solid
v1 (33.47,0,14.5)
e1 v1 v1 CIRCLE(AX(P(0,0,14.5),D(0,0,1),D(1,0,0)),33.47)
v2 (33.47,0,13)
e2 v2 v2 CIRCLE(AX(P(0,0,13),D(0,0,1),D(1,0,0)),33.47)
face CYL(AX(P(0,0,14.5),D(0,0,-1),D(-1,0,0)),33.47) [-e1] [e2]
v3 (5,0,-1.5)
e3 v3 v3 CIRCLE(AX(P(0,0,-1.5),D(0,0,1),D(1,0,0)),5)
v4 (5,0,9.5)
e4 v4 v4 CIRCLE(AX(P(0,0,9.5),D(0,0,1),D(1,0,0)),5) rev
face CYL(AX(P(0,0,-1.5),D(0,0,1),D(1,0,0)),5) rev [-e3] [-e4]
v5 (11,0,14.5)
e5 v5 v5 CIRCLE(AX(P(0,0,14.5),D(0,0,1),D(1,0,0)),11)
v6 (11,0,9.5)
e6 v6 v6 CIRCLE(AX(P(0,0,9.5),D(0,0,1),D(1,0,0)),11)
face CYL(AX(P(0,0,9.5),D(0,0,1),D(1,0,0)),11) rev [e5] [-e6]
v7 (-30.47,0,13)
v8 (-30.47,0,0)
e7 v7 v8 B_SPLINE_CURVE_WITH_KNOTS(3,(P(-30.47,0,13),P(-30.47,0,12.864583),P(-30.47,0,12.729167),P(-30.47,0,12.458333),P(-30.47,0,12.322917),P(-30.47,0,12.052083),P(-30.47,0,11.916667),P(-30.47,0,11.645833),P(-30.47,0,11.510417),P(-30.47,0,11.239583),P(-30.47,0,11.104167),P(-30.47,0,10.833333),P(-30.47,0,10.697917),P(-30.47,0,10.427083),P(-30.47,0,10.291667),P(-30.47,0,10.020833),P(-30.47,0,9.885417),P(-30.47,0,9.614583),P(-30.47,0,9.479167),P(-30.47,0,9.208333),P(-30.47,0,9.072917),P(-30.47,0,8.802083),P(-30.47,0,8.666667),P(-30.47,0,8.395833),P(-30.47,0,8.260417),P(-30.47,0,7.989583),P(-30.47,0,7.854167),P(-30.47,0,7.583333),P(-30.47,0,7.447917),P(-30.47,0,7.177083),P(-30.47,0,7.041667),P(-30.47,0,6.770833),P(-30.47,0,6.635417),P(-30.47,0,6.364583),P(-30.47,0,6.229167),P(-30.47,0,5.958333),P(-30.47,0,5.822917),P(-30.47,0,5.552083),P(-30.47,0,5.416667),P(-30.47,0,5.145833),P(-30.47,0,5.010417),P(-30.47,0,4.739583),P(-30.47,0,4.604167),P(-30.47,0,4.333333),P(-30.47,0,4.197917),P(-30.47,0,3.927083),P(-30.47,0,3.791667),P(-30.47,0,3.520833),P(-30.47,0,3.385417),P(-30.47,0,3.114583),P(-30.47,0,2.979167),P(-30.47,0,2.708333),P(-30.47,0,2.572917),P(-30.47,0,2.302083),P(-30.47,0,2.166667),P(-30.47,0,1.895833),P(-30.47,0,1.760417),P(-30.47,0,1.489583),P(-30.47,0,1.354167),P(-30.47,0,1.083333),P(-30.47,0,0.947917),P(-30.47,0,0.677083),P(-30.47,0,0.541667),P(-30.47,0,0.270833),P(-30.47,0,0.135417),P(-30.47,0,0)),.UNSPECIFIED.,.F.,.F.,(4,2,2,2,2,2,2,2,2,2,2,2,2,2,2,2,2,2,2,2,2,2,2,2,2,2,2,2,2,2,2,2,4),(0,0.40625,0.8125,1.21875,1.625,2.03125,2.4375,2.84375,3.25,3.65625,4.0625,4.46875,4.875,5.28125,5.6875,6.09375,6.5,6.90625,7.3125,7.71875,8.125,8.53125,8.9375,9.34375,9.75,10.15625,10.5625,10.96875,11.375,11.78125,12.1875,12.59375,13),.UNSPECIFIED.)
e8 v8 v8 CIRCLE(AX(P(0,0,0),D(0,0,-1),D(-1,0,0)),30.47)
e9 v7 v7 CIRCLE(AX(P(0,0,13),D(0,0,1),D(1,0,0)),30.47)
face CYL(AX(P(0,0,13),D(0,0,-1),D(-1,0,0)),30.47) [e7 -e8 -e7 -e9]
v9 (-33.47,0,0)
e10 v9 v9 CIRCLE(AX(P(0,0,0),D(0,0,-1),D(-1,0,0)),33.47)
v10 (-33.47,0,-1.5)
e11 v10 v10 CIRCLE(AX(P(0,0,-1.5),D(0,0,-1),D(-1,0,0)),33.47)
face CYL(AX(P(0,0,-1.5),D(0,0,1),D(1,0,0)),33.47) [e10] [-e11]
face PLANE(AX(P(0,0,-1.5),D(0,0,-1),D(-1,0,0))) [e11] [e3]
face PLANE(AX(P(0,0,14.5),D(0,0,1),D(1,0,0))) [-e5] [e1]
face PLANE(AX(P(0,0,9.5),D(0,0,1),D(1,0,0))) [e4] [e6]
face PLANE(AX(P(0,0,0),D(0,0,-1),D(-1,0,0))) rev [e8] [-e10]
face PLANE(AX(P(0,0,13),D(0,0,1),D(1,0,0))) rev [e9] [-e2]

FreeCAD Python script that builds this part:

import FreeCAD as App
import Part
import Sketcher
Q = App.Units.Quantity

doc = App.newDocument("Part")
body = doc.addObject("PartDesign::Body", "Body")

sketch1 = body.newObject("Sketcher::SketchObject", "Sketch")
sketch1.AttachmentSupport = (doc.getObject("XY_Plane"), [""])
sketch1.MapMode = "FlatFace"
sketch1.addGeometry(Part.Circle(App.Vector(0, 0, 0), App.Vector(0, 0, 1), 30.47), False)
sketch1.addConstraint([
    Sketcher.Constraint("Coincident", 0, 3, -1, 1),
    Sketcher.Constraint("Diameter", 0, Q("60.94 mm")),
])
pad1 = body.newObject("PartDesign::Pad", "Pad")
pad1.Profile = sketch1
pad1.Length = 13

sketch2 = body.newObject("Sketcher::SketchObject", "Sketch001")
sketch2.AttachmentSupport = (doc.getObject("XY_Plane"), [""])
sketch2.MapMode = "FlatFace"
sketch2.AttachmentOffset = App.Placement(App.Vector(0, 0, 13), App.Rotation())
sketch2.addGeometry(Part.Circle(App.Vector(0, 0, 0), App.Vector(0, 0, 1), 33.47), False)
sketch2.addConstraint([
    Sketcher.Constraint("Coincident", 0, 3, -1, 1),
    Sketcher.Constraint("Diameter", 0, Q("66.94 mm")),
])
pad2 = body.newObject("PartDesign::Pad", "Pad001")
pad2.Profile = sketch2
pad2.Length = 1.5

sketch3 = body.newObject("Sketcher::SketchObject", "Sketch002")
sketch3.AttachmentSupport = (doc.getObject("XY_Plane"), [""])
sketch3.MapMode = "FlatFace"
sketch3.AttachmentOffset = App.Placement(App.Vector(0, 0, -1.5), App.Rotation())
sketch3.addGeometry(Part.Circle(App.Vector(0, 0, 0), App.Vector(0, 0, 1), 33.47), False)
sketch3.addConstraint([
    Sketcher.Constraint("Coincident", 0, 3, -1, 1),
    Sketcher.Constraint("Diameter", 0, Q("66.94 mm")),
])
pad3 = body.newObject("PartDesign::Pad", "Pad002")
pad3.Profile = sketch3
pad3.Length = 1.5

sketch4 = body.newObject("Sketcher::SketchObject", "Sketch003")
sketch4.AttachmentSupport = (doc.getObject("XY_Plane"), [""])
sketch4.MapMode = "FlatFace"
sketch4.AttachmentOffset = App.Placement(App.Vector(0, 0, 14.5), App.Rotation())
sketch4.addGeometry(Part.Circle(App.Vector(0, 0, 0), App.Vector(0, 0, 1), 5), False)
sketch4.addConstraint([
    Sketcher.Constraint("Coincident", 0, 3, -1, 1),
    Sketcher.Constraint("Diameter", 0, Q("10 mm")),
])
pocket1 = body.newObject("PartDesign::Pocket", "Pocket")
pocket1.Profile = sketch4
pocket1.Type = "ThroughAll"

sketch5 = body.newObject("Sketcher::SketchObject", "Sketch004")
sketch5.AttachmentSupport = (doc.getObject("XY_Plane"), [""])
sketch5.MapMode = "FlatFace"
sketch5.AttachmentOffset = App.Placement(App.Vector(0, 0, 14.5), App.Rotation())
sketch5.addGeometry(Part.Circle(App.Vector(0, 0, 0), App.Vector(0, 0, 1), 11), False)
sketch5.addConstraint([
    Sketcher.Constraint("Coincident", 0, 3, -1, 1),
    Sketcher.Constraint("Diameter", 0, Q("22 mm")),
])
pocket2 = body.newObject("PartDesign::Pocket", "Pocket001")
pocket2.Profile = sketch5
pocket2.Length = 5

doc.recompute()
